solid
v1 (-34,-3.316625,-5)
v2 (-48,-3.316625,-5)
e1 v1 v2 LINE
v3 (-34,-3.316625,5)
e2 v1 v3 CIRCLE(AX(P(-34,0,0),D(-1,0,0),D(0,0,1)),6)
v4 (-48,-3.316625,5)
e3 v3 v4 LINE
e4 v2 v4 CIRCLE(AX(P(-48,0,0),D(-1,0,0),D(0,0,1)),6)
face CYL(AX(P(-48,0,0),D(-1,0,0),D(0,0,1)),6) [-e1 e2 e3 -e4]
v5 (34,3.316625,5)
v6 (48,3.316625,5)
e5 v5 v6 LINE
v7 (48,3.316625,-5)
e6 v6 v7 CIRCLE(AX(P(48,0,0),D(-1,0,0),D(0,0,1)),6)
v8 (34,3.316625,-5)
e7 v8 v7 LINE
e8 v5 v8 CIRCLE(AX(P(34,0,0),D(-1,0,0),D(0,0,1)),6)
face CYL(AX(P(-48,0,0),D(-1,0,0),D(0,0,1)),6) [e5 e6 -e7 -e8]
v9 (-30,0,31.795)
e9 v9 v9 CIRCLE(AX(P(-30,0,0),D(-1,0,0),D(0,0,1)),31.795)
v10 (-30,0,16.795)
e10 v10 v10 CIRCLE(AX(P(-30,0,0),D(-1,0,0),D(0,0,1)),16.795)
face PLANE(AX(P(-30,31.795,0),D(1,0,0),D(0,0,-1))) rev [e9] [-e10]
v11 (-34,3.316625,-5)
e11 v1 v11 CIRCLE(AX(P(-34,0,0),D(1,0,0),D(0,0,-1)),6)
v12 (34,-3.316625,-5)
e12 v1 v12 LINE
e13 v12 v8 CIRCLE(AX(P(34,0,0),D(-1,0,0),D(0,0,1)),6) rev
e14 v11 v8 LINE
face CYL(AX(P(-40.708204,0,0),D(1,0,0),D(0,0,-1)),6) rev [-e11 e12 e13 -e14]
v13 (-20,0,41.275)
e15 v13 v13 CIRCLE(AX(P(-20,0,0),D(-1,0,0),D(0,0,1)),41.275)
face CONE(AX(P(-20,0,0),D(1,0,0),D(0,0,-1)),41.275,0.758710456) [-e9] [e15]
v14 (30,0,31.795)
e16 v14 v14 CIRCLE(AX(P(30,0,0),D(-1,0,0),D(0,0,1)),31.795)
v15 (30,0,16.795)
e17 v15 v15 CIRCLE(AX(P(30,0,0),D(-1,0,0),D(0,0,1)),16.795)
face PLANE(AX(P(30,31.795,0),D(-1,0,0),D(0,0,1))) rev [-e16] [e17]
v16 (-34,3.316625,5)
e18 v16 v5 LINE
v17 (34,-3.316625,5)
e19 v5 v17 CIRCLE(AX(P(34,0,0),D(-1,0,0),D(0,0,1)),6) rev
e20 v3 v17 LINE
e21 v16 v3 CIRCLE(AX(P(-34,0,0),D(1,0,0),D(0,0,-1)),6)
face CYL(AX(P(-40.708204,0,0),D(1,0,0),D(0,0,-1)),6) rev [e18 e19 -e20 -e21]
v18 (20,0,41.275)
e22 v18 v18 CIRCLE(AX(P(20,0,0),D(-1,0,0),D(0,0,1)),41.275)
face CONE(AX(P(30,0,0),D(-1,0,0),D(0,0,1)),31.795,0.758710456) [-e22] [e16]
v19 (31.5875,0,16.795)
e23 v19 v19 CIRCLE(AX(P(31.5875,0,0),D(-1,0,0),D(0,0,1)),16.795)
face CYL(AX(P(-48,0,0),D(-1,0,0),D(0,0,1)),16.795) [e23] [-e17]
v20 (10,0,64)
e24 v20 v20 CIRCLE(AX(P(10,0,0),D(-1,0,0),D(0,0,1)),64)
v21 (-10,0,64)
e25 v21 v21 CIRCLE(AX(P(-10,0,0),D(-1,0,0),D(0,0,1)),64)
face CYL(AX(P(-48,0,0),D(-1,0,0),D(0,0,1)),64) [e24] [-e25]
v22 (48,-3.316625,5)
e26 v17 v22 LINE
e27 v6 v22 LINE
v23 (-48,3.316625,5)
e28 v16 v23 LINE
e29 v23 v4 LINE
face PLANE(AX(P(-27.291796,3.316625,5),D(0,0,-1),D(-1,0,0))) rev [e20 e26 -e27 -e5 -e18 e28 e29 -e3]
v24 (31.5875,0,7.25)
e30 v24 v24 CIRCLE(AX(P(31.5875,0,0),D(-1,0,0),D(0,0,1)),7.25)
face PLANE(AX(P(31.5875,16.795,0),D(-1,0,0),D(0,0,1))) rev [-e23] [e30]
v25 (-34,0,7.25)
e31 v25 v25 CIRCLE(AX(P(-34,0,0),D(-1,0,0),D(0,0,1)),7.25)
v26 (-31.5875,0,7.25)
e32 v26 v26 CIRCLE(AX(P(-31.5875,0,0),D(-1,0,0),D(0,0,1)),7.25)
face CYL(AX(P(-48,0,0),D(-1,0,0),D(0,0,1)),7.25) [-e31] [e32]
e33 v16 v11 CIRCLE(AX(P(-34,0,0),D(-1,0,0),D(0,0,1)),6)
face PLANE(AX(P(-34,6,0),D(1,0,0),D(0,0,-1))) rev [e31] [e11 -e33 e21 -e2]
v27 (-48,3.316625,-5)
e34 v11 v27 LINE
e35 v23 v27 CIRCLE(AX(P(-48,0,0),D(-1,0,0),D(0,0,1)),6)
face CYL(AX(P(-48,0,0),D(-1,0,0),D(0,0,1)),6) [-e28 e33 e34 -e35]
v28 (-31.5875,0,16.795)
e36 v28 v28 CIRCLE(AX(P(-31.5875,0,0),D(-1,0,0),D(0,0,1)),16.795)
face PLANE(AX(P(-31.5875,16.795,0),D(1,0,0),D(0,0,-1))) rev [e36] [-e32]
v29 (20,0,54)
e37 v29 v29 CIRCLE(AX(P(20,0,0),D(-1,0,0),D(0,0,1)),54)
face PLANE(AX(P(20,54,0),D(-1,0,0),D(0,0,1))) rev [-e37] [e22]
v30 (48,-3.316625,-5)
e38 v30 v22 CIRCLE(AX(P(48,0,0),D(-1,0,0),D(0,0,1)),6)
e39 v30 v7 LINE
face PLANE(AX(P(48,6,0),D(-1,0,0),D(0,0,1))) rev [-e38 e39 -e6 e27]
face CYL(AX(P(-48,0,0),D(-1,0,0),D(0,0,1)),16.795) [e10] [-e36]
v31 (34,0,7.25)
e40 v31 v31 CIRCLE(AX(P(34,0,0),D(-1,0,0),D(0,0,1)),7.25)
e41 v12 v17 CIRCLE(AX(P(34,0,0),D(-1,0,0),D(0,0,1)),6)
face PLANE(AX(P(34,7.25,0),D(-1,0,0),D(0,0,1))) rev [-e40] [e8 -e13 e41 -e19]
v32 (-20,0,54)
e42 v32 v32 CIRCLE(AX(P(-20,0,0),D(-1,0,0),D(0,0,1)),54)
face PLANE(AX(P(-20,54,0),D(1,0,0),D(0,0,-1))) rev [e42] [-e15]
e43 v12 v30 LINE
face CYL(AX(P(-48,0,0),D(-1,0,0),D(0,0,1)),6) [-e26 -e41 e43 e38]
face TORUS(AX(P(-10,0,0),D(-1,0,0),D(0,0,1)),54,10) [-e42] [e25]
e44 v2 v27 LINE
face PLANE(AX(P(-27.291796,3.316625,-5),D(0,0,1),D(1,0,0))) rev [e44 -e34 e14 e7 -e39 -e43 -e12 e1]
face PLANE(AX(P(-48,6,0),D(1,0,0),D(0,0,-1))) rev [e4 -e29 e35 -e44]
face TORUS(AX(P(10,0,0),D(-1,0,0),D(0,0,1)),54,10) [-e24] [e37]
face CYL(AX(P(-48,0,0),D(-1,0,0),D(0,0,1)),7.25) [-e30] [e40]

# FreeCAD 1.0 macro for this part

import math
import FreeCAD as App
import Part
import Sketcher

doc = App.newDocument("Part")
params = doc.addObject("Spreadsheet::Sheet", "Params")
for row, (alias, value) in enumerate([
    ("sketch1_radius", "10 mm"),
    ("sketch1_width", "20 mm"),
    ("sketch1_width2", "14 mm"),
    ("sketch1_width3", "96 mm"),
    ("sketch1_height", "15 mm"),
    ("revolution_angle", "360 deg"),
    ("sketch2_radius", "6 mm"),
    ("pocket1_length", "96 mm"),
], start=1):
    params.set(f"A{row}", alias)
    params.set(f"B{row}", "=" + value)
    params.setAlias(f"B{row}", alias)

body = doc.addObject("PartDesign::Body", "Body")

sketch1 = doc.addObject("Sketcher::SketchObject", "Sketch")
body.addObject(sketch1)
sketch1.AttachmentSupport = (doc.XY_Plane, [""])
sketch1.MapMode = "FlatFace"
sketch1.addGeometry([
    Part.LineSegment(App.Vector(10, 64, 0), App.Vector(-10, 64, 0)),
    Part.ArcOfCircle(Part.Circle(App.Vector(-10, 54, 0), App.Vector(0, 0, 1), 10), math.radians(90), math.radians(180)),
    Part.LineSegment(App.Vector(-20, 54, 0), App.Vector(-20, 41.275, 0)),
    Part.LineSegment(App.Vector(-20, 41.275, 0), App.Vector(-30, 31.795, 0)),
    Part.LineSegment(App.Vector(-30, 31.795, 0), App.Vector(-30, 16.795, 0)),
    Part.LineSegment(App.Vector(-30, 16.795, 0), App.Vector(-31.5875, 16.795, 0)),
    Part.LineSegment(App.Vector(-31.5875, 16.795, 0), App.Vector(-31.5875, 7.25, 0)),
    Part.LineSegment(App.Vector(-31.5875, 7.25, 0), App.Vector(-34, 7.25, 0)),
    Part.LineSegment(App.Vector(-34, 7.25, 0), App.Vector(-34, 6, 0)),
    Part.LineSegment(App.Vector(-34, 6, 0), App.Vector(-48, 6, 0)),
    Part.LineSegment(App.Vector(-48, 6, 0), App.Vector(-48, 0, 0)),
    Part.LineSegment(App.Vector(-48, 0, 0), App.Vector(48, 0, 0)),
    Part.LineSegment(App.Vector(48, 0, 0), App.Vector(48, 6, 0)),
    Part.LineSegment(App.Vector(48, 6, 0), App.Vector(34, 6, 0)),
    Part.LineSegment(App.Vector(34, 6, 0), App.Vector(34, 7.25, 0)),
    Part.LineSegment(App.Vector(34, 7.25, 0), App.Vector(31.5875, 7.25, 0)),
    Part.LineSegment(App.Vector(31.5875, 7.25, 0), App.Vector(31.5875, 16.795, 0)),
    Part.LineSegment(App.Vector(31.5875, 16.795, 0), App.Vector(30, 16.795, 0)),
    Part.LineSegment(App.Vector(30, 16.795, 0), App.Vector(30, 31.795, 0)),
    Part.LineSegment(App.Vector(30, 31.795, 0), App.Vector(20, 41.275, 0)),
    Part.LineSegment(App.Vector(20, 41.275, 0), App.Vector(20, 54, 0)),
    Part.ArcOfCircle(Part.Circle(App.Vector(10, 54, 0), App.Vector(0, 0, 1), 10), math.radians(0), math.radians(90)),
], False)
sketch1.addConstraint([
    Sketcher.Constraint("Tangent", 0, 2, 1, 1),
    Sketcher.Constraint("Tangent", 1, 2, 2, 1),
    Sketcher.Constraint("Coincident", 2, 2, 3, 1),
    Sketcher.Constraint("Coincident", 3, 2, 4, 1),
    Sketcher.Constraint("Coincident", 4, 2, 5, 1),
    Sketcher.Constraint("Coincident", 5, 2, 6, 1),
    Sketcher.Constraint("Coincident", 6, 2, 7, 1),
    Sketcher.Constraint("Coincident", 7, 2, 8, 1),
    Sketcher.Constraint("Coincident", 8, 2, 9, 1),
    Sketcher.Constraint("Coincident", 9, 2, 10, 1),
    Sketcher.Constraint("Coincident", 10, 2, 11, 1),
    Sketcher.Constraint("Coincident", 11, 2, 12, 1),
    Sketcher.Constraint("Coincident", 12, 2, 13, 1),
    Sketcher.Constraint("Coincident", 13, 2, 14, 1),
    Sketcher.Constraint("Coincident", 14, 2, 15, 1),
    Sketcher.Constraint("Coincident", 15, 2, 16, 1),
    Sketcher.Constraint("Coincident", 16, 2, 17, 1),
    Sketcher.Constraint("Coincident", 17, 2, 18, 1),
    Sketcher.Constraint("Coincident", 18, 2, 19, 1),
    Sketcher.Constraint("Coincident", 19, 2, 20, 1),
    Sketcher.Constraint("Tangent", 20, 2, 21, 1),
    Sketcher.Constraint("Tangent", 21, 2, 0, 1),
    Sketcher.Constraint("Horizontal", 0),
    Sketcher.Constraint("Vertical", 2),
    Sketcher.Constraint("Vertical", 4),
    Sketcher.Constraint("Horizontal", 5),
    Sketcher.Constraint("Vertical", 6),
    Sketcher.Constraint("Horizontal", 7),
    Sketcher.Constraint("Vertical", 8),
    Sketcher.Constraint("Horizontal", 9),
    Sketcher.Constraint("Vertical", 10),
    Sketcher.Constraint("Horizontal", 11),
    Sketcher.Constraint("Vertical", 12),
    Sketcher.Constraint("Horizontal", 13),
    Sketcher.Constraint("Vertical", 14),
    Sketcher.Constraint("Horizontal", 15),
    Sketcher.Constraint("Vertical", 16),
    Sketcher.Constraint("Horizontal", 17),
    Sketcher.Constraint("Vertical", 18),
    Sketcher.Constraint("Vertical", 20),
    Sketcher.Constraint("Equal", 1, 21),
    Sketcher.Constraint("Symmetric", 10, 2, 11, 2, -1, 1),
    Sketcher.Constraint("Symmetric", 8, 2, 13, 2, -2),
    Sketcher.Constraint("Symmetric", 6, 2, 15, 2, -2),
    Sketcher.Constraint("Symmetric", 4, 2, 17, 2, -2),
    Sketcher.Constraint("Symmetric", 2, 2, 19, 2, -2),
    Sketcher.Constraint("Horizontal", 3, 2, 18, 2),
    Sketcher.Constraint("Radius", 1, 10.0),
    Sketcher.Constraint("DistanceX", 0, 2, 0, 1, 20.0),
    Sketcher.Constraint("DistanceX", 9, 2, 9, 1, 14.0),
    Sketcher.Constraint("DistanceX", 11, 1, 11, 2, 96.0),
    Sketcher.Constraint("DistanceY", 4, 2, 4, 1, 15.0),
    Sketcher.Constraint("DistanceY", 10, 2, 10, 1, 6.0),
    Sketcher.Constraint("DistanceY", -1, 1, 1, 3, 54.0),
    Sketcher.Constraint("DistanceX", 3, 2, -1, 1, 30.0),
    Sketcher.Constraint("DistanceY", 8, 2, 8, 1, 1.25),
    Sketcher.Constraint("DistanceY", 2, 2, 2, 1, 12.725),
    Sketcher.Constraint("DistanceY", 6, 2, 6, 1, 9.545),
    Sketcher.Constraint("DistanceX", 5, 2, 5, 1, 1.5875),
])
sketch1.setExpression("Constraints[47]", "Params.sketch1_radius")
sketch1.setExpression("Constraints[48]", "Params.sketch1_width")
sketch1.setExpression("Constraints[49]", "Params.sketch1_width2")
sketch1.setExpression("Constraints[50]", "Params.sketch1_width3")
sketch1.setExpression("Constraints[51]", "Params.sketch1_height")
revolution = doc.addObject("PartDesign::Revolution", "Revolution")
body.addObject(revolution)
revolution.Profile = sketch1
revolution.ReferenceAxis = (sketch1, ["H_Axis"])
revolution.setExpression("Angle", "Params.revolution_angle")

sketch2 = doc.addObject("Sketcher::SketchObject", "Sketch001")
body.addObject(sketch2)
sketch2.AttachmentSupport = (doc.YZ_Plane, [""])
sketch2.MapMode = "FlatFace"
sketch2.AttachmentOffset = App.Placement(App.Vector(0, 0, 48), App.Rotation())
sketch2.addGeometry([
    Part.LineSegment(App.Vector(3.316625, 5, 0), App.Vector(-3.316625, 5, 0)),
    Part.ArcOfCircle(Part.Circle(App.Vector(0, 0, 0), App.Vector(0, 0, 1), 6), math.radians(56.44269), math.radians(123.55731)),
    Part.LineSegment(App.Vector(-3.316625, -5, 0), App.Vector(3.316625, -5, 0)),
    Part.ArcOfCircle(Part.Circle(App.Vector(0, 0, 0), App.Vector(0, 0, 1), 6), math.radians(-123.55731), math.radians(-56.44269)),
], False)
sketch2.addConstraint([
    Sketcher.Constraint("Coincident", 0, 1, 1, 1),
    Sketcher.Constraint("Coincident", 1, 2, 0, 2),
    Sketcher.Constraint("Coincident", 2, 1, 3, 1),
    Sketcher.Constraint("Coincident", 3, 2, 2, 2),
    Sketcher.Constraint("Horizontal", 0),
    Sketcher.Constraint("Horizontal", 2),
    Sketcher.Constraint("Coincident", 1, 3, -1, 1),
    Sketcher.Constraint("Coincident", 3, 3, -1, 1),
    Sketcher.Constraint("Equal", 1, 3),
    Sketcher.Constraint("Vertical", 1, 2, 2, 1),
    Sketcher.Constraint("Radius", 1, 6.0),
    Sketcher.Constraint("DistanceY", -1, 1, 0, 1, 5.0),
])
sketch2.setExpression("Constraints[10]", "Params.sketch2_radius")
pocket1 = doc.addObject("PartDesign::Pocket", "Pocket")
body.addObject(pocket1)
pocket1.Profile = sketch2
pocket1.setExpression("Length", "Params.pocket1_length")
doc.recompute()

mirrored = doc.addObject("PartDesign::Mirrored", "Mirrored")
body.addObject(mirrored)
mirrored.Originals = [pocket1]
mirrored.MirrorPlane = (doc.YZ_Plane, [""])
body.Tip = mirrored

doc.recompute()
